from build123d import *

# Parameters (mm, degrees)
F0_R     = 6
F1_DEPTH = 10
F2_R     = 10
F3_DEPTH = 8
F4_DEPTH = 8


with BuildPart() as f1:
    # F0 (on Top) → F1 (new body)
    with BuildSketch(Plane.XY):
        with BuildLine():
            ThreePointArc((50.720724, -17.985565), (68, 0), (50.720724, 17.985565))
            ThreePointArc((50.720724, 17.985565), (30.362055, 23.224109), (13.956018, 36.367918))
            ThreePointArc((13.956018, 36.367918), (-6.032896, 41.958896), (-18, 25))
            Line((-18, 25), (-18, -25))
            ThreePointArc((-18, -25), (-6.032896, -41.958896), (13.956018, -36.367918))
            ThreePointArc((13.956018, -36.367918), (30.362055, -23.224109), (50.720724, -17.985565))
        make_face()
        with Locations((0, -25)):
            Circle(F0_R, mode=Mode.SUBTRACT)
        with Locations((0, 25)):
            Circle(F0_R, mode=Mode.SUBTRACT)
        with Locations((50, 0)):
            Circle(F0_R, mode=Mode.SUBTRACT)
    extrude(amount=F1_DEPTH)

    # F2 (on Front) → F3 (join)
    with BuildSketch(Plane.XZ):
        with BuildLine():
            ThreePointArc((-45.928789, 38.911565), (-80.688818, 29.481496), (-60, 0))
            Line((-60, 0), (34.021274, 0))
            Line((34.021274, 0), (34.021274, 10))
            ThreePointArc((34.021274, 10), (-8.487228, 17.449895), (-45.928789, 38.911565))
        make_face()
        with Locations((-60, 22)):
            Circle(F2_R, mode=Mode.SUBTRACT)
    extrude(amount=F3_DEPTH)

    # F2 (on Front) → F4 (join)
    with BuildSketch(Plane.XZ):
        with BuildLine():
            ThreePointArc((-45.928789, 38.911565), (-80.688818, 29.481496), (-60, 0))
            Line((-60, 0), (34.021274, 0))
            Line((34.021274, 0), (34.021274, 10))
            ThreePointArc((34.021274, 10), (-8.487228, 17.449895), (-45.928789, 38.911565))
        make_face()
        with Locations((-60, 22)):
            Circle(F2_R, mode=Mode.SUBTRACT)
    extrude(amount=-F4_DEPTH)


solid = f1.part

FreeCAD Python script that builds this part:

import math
import FreeCAD as App
import Part
import Sketcher

doc = App.newDocument("Part")
body = doc.addObject("PartDesign::Body", "Body")

# Sketch on XY plane
sketch1 = body.newObject("Sketcher::SketchObject", "Sketch")
sketch1.AttachmentSupport = (doc.getObject("XY_Plane"), [""])
sketch1.MapMode = "FlatFace"
sketch1.addGeometry([
    Part.ArcOfCircle(Part.Circle(App.Vector(50, 0, 0), App.Vector(0, 0, 1), 18), math.radians(-88), math.radians(88)),  # 0
    Part.ArcOfCircle(Part.Circle(App.Vector(53, 68, 0), App.Vector(0, 0, 1), 50), math.radians(-141), math.radians(-92)),  # 1
    Part.ArcOfCircle(Part.Circle(App.Vector(0, 25, 0), App.Vector(0, 0, 1), 18), math.radians(39), math.radians(180)),  # 2
    Part.LineSegment(App.Vector(-18, 25, 0), App.Vector(-18, -25, 0)),  # 3
    Part.ArcOfCircle(Part.Circle(App.Vector(0, -25, 0), App.Vector(0, 0, 1), 18), math.radians(-180), math.radians(-39)),  # 4
    Part.ArcOfCircle(Part.Circle(App.Vector(53, -68, 0), App.Vector(0, 0, 1), 50), math.radians(92), math.radians(141)),  # 5
    Part.Circle(App.Vector(0, -25, 0), App.Vector(0, 0, 1), 6),  # 6
    Part.Circle(App.Vector(0, 25, 0), App.Vector(0, 0, 1), 6),  # 7
    Part.Circle(App.Vector(50, 0, 0), App.Vector(0, 0, 1), 6),  # 8
], False)
sketch1.addConstraint([
    Sketcher.Constraint("Tangent", 0, 2, 1, 2),
    Sketcher.Constraint("Tangent", 1, 1, 2, 1),
    Sketcher.Constraint("Tangent", 2, 2, 3, 1),
    Sketcher.Constraint("Tangent", 3, 2, 4, 1),
    Sketcher.Constraint("Tangent", 4, 2, 5, 2),
    Sketcher.Constraint("Tangent", 5, 1, 0, 1),
    Sketcher.Constraint("Vertical", 3),
    Sketcher.Constraint("Coincident", 6, 3, 4, 3),
    Sketcher.Constraint("Coincident", 7, 3, 2, 3),
    Sketcher.Constraint("Coincident", 8, 3, 0, 3),
    Sketcher.Constraint("Equal", 0, 2),
    Sketcher.Constraint("Equal", 2, 4),
    Sketcher.Constraint("Equal", 1, 5),
    Sketcher.Constraint("Equal", 6, 7),
    Sketcher.Constraint("Equal", 7, 8),
    Sketcher.Constraint("Symmetric", 2, 3, 4, 3, -1, 1),
    Sketcher.Constraint("PointOnObject", 0, 3, -1),
    Sketcher.Constraint("Diameter", 6, 12.0),
    Sketcher.Constraint("Radius", 0, 18.0),
    Sketcher.Constraint("DistanceY", 3, 2, 3, 1, 50.0),
    Sketcher.Constraint("DistanceX", -1, 1, 0, 3, 50.0),
    Sketcher.Constraint("Radius", 1, 50.000002),
])
pad1 = body.newObject("PartDesign::Pad", "Pad")
pad1.Profile = sketch1
pad1.Length = 10

# Sketch on XZ plane
sketch2 = body.newObject("Sketcher::SketchObject", "Sketch001")
sketch2.AttachmentSupport = (doc.getObject("XZ_Plane"), [""])
sketch2.MapMode = "FlatFace"
sketch2.addGeometry([
    Part.ArcOfCircle(Part.Circle(App.Vector(-60, 22, 0), App.Vector(0, 0, 1), 22), math.radians(50), math.radians(270)),  # 0
    Part.LineSegment(App.Vector(-60, 0, 0), App.Vector(34, 0, 0)),  # 1
    Part.LineSegment(App.Vector(34, 0, 0), App.Vector(34, 10, 0)),  # 2
    Part.ArcOfCircle(Part.Circle(App.Vector(34, 135, 0), App.Vector(0, 0, 1), 125), math.radians(-130), math.radians(-90)),  # 3
    Part.Circle(App.Vector(-60, 22, 0), App.Vector(0, 0, 1), 10),  # 4
], False)
sketch2.addConstraint([
    Sketcher.Constraint("Tangent", 0, 2, 1, 1),
    Sketcher.Constraint("Coincident", 1, 2, 2, 1),
    Sketcher.Constraint("Coincident", 2, 2, 3, 2),
    Sketcher.Constraint("Tangent", 3, 1, 0, 1),
    Sketcher.Constraint("Horizontal", 1),
    Sketcher.Constraint("Vertical", 2),
    Sketcher.Constraint("Coincident", 4, 3, 0, 3),
    Sketcher.Constraint("PointOnObject", 0, 2, -1),
    Sketcher.Constraint("Vertical", 3, 3, 1, 2),
    Sketcher.Constraint("Diameter", 4, 20.0),
    Sketcher.Constraint("Radius", 0, 22.0),
    Sketcher.Constraint("Radius", 3, 125.000002),
    Sketcher.Constraint("DistanceY", 2, 1, 2, 2, 10.0),
    Sketcher.Constraint("DistanceX", 0, 3, -1, 1, 59.999999),
])
pad2 = body.newObject("PartDesign::Pad", "Pad001")
pad2.Profile = sketch2
pad2.Length = 8

# Sketch on XZ plane
sketch3 = body.newObject("Sketcher::SketchObject", "Sketch002")
sketch3.AttachmentSupport = (doc.getObject("XZ_Plane"), [""])
sketch3.MapMode = "FlatFace"
sketch3.addGeometry([
    Part.ArcOfCircle(Part.Circle(App.Vector(-60, 22, 0), App.Vector(0, 0, 1), 22), math.radians(50), math.radians(270)),  # 0
    Part.LineSegment(App.Vector(-60, 0, 0), App.Vector(34, 0, 0)),  # 1
    Part.LineSegment(App.Vector(34, 0, 0), App.Vector(34, 10, 0)),  # 2
    Part.ArcOfCircle(Part.Circle(App.Vector(34, 135, 0), App.Vector(0, 0, 1), 125), math.radians(-130), math.radians(-90)),  # 3
    Part.Circle(App.Vector(-60, 22, 0), App.Vector(0, 0, 1), 10),  # 4
], False)
sketch3.addConstraint([
    Sketcher.Constraint("Tangent", 0, 2, 1, 1),
    Sketcher.Constraint("Coincident", 1, 2, 2, 1),
    Sketcher.Constraint("Coincident", 2, 2, 3, 2),
    Sketcher.Constraint("Tangent", 3, 1, 0, 1),
    Sketcher.Constraint("Horizontal", 1),
    Sketcher.Constraint("Vertical", 2),
    Sketcher.Constraint("Coincident", 4, 3, 0, 3),
    Sketcher.Constraint("PointOnObject", 0, 2, -1),
    Sketcher.Constraint("Vertical", 3, 3, 1, 2),
    Sketcher.Constraint("Diameter", 4, 20.0),
    Sketcher.Constraint("Radius", 0, 22.0),
    Sketcher.Constraint("Radius", 3, 125.000002),
    Sketcher.Constraint("DistanceY", 2, 1, 2, 2, 10.0),
    Sketcher.Constraint("DistanceX", 0, 3, -1, 1, 59.999999),
])
pad3 = body.newObject("PartDesign::Pad", "Pad002")
pad3.Profile = sketch3
pad3.Length = 8
pad3.Reversed = True

doc.recompute()
